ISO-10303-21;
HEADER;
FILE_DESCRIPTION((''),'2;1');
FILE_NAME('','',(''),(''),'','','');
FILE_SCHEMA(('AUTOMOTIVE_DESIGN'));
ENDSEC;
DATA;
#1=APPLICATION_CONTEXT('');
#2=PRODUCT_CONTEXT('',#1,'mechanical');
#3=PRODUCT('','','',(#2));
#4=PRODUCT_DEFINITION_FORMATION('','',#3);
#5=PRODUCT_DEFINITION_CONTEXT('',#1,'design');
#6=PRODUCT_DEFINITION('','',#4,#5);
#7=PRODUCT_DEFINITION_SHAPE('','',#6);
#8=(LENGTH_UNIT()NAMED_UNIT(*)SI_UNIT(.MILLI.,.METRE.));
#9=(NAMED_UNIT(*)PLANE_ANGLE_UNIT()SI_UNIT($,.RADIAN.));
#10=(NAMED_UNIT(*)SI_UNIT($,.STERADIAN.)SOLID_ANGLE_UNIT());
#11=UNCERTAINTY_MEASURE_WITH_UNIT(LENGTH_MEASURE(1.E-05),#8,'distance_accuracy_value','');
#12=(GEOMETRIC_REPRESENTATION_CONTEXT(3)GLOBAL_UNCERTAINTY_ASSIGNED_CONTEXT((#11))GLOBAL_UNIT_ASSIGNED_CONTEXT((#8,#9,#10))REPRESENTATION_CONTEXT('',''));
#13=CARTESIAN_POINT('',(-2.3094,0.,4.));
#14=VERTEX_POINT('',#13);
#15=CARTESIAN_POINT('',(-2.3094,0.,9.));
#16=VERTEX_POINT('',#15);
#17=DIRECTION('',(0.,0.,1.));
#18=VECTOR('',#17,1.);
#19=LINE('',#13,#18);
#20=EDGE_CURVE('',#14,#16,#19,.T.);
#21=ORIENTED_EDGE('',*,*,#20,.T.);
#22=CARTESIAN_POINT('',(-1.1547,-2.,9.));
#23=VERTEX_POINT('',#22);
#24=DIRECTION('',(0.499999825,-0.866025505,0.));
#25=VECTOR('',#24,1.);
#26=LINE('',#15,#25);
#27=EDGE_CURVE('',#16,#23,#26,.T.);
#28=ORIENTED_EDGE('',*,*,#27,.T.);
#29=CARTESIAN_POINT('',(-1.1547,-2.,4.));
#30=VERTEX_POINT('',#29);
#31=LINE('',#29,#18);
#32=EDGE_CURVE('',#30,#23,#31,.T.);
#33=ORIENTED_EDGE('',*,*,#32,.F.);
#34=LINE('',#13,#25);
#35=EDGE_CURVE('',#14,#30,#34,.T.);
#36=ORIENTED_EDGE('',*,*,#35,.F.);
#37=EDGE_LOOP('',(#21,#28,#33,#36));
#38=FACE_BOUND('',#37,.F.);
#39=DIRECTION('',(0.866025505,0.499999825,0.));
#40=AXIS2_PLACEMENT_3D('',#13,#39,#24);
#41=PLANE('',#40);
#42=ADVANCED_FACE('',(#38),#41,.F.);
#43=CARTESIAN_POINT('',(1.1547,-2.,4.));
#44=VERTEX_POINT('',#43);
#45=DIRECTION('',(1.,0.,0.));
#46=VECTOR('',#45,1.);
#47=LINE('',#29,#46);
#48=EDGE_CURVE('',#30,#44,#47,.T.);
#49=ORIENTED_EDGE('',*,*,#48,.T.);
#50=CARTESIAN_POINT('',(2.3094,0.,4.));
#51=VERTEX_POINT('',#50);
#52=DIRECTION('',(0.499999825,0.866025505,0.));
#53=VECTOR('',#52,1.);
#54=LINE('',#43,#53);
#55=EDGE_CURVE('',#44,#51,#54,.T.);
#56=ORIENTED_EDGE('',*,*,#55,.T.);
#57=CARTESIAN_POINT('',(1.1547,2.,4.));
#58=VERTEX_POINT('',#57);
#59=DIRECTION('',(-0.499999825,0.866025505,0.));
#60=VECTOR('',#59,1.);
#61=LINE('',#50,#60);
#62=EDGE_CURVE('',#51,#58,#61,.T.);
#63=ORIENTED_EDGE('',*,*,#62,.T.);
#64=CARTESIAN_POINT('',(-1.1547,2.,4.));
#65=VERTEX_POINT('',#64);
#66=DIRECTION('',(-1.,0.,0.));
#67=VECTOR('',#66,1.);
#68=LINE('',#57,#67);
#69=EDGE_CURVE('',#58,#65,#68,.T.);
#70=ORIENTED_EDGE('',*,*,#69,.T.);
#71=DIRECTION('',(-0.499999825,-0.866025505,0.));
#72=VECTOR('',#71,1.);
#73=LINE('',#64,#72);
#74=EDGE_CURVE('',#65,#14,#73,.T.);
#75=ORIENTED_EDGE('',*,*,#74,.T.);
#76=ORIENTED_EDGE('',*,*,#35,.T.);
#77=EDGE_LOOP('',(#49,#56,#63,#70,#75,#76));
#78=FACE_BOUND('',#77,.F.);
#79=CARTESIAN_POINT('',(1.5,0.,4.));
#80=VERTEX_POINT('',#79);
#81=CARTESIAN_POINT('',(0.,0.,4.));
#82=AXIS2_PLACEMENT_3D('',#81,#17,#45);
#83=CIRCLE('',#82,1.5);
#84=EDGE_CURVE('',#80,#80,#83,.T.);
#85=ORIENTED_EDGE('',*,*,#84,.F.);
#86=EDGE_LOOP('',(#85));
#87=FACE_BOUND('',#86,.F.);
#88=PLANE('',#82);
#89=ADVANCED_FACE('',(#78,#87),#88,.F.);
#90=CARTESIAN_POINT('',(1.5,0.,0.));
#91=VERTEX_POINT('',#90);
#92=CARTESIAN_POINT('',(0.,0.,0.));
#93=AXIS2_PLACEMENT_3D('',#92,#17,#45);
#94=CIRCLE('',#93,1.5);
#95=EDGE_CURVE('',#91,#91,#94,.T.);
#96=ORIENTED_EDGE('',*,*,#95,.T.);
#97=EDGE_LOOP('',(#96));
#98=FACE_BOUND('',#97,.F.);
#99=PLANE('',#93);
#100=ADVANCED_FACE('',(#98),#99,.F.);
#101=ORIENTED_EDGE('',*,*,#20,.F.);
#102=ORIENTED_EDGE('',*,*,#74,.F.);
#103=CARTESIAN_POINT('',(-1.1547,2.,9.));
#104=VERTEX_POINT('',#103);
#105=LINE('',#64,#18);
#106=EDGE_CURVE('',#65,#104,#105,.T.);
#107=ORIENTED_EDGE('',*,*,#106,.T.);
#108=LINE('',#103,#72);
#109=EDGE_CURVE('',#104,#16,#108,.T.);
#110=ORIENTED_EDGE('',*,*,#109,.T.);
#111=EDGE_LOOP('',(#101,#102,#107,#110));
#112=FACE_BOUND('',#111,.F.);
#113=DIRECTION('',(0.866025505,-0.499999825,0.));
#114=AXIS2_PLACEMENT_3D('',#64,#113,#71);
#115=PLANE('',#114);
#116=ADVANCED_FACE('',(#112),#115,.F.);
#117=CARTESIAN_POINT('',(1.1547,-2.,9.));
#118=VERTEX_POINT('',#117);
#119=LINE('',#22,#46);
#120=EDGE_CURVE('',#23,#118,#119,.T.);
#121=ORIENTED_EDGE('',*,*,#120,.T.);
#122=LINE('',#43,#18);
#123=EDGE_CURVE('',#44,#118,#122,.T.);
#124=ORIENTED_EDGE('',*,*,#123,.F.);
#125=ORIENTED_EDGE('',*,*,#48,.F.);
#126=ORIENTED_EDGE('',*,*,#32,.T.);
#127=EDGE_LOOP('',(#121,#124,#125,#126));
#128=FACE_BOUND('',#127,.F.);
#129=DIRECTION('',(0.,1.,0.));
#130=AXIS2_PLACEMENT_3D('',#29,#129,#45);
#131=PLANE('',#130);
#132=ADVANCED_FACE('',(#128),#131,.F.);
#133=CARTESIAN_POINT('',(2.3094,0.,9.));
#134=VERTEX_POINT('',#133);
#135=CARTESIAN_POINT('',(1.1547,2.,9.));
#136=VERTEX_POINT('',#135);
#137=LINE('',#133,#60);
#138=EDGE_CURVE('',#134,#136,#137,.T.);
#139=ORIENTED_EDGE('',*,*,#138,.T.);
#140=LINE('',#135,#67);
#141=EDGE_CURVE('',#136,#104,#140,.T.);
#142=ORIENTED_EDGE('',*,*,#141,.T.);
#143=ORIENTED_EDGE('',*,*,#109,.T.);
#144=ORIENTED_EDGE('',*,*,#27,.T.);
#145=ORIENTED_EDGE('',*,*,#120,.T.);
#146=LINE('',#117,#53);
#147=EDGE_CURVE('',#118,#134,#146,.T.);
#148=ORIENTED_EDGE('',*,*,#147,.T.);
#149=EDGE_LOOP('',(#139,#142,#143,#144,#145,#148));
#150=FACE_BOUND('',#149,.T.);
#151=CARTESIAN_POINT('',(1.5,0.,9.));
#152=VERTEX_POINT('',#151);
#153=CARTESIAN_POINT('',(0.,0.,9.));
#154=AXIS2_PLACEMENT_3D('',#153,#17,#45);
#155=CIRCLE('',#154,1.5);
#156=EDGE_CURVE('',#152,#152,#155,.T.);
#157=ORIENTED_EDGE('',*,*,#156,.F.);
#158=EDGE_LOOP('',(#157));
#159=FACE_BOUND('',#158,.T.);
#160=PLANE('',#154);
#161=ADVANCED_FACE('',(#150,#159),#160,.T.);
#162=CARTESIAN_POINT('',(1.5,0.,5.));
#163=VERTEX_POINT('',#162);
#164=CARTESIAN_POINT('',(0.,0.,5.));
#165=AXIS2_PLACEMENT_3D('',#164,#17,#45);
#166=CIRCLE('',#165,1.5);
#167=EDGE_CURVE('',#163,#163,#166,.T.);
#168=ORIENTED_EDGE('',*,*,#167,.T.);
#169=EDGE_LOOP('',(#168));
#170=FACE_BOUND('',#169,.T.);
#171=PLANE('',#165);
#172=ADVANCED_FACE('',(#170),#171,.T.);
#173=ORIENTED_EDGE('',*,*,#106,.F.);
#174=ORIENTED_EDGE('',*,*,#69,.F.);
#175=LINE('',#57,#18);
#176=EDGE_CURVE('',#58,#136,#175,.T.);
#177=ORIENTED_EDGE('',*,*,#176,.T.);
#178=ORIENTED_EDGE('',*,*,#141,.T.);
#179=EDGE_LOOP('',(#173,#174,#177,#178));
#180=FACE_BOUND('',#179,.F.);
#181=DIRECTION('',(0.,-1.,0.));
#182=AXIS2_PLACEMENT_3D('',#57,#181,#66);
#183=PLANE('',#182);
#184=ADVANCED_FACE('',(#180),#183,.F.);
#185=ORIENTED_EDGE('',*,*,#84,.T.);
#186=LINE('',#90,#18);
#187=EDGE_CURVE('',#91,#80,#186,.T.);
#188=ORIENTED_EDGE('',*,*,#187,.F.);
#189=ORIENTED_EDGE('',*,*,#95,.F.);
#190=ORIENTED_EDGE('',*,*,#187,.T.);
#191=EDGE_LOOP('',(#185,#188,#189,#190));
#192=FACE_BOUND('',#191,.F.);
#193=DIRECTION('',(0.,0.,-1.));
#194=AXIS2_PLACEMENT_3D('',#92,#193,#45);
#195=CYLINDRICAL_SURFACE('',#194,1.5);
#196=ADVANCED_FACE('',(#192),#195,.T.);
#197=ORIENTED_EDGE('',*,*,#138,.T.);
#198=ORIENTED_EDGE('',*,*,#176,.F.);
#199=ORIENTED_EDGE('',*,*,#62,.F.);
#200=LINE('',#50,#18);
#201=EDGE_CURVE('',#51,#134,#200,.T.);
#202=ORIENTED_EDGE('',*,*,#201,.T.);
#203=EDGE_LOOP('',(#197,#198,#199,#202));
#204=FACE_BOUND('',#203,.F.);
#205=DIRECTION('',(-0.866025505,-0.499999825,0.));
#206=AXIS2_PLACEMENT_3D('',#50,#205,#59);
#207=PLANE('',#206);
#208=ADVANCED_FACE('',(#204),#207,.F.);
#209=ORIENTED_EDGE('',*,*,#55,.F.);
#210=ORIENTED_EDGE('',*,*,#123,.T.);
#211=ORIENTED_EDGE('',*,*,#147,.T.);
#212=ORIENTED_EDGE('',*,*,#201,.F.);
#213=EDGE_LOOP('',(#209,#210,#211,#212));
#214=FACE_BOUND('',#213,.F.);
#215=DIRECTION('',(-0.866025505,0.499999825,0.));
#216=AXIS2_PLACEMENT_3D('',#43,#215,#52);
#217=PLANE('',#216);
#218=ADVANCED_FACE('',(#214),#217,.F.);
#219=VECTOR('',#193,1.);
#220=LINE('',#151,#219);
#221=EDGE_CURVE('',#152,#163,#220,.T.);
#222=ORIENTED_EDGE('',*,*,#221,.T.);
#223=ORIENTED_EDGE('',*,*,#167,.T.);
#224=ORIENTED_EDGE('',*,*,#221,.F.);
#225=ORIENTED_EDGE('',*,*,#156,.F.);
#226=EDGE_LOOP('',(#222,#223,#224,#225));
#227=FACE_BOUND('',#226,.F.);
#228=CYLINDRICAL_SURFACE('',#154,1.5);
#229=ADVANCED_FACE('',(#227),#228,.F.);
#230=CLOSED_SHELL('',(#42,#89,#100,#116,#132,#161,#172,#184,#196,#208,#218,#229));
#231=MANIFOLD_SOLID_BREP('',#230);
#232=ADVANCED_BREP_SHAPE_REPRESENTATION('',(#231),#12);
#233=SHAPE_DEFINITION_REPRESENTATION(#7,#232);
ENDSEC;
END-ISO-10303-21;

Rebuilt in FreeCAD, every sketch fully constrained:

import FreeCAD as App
import Part
import Sketcher

V = App.Vector
Q = App.Units.Quantity


def add_polygon(sketch, points):
    """Adds a closed chain of lines whose ends are joined by coincident constraints."""
    first, n = sketch.GeometryCount, len(points)
    for a, b in zip(points, points[1:] + points[:1]):
        sketch.addGeometry(Part.LineSegment(App.Vector(*a, 0), App.Vector(*b, 0)), False)
    for i in range(n):
        sketch.addConstraint(Sketcher.Constraint("Coincident", first + i, 2, first + (i + 1) % n, 1))

doc = App.newDocument("Part")
body = doc.addObject("PartDesign::Body", "Body")

# Sketch on XY plane
sketch1 = body.newObject("Sketcher::SketchObject", "Sketch")
sketch1.AttachmentSupport = (doc.getObject("XY_Plane"), [""])
sketch1.MapMode = "FlatFace"
sketch1.addGeometry(Part.Circle(V(0, 0, 0), V(0, 0, 1), 1.5), False)
sketch1.addConstraint([
    Sketcher.Constraint("Coincident", 0, 3, -1, 1),
    Sketcher.Constraint("Diameter", 0, 3.0),
])
pad1 = body.newObject("PartDesign::Pad", "Pad")
pad1.Profile = sketch1
pad1.Length = 4

# Sketch on XY plane
sketch2 = body.newObject("Sketcher::SketchObject", "Sketch001")
sketch2.AttachmentSupport = (doc.getObject("XY_Plane"), [""])
sketch2.MapMode = "FlatFace"
sketch2.AttachmentOffset = App.Placement(V(0, 0, 4), App.Rotation())
add_polygon(sketch2, [(1.2, -2), (2.3, 0), (1.2, 2), (-1.2, 2), (-2.3, 0), (-1.2, -2)])  # lines 0-5
sketch2.addConstraint([
    Sketcher.Constraint("Horizontal", 2),
    Sketcher.Constraint("Horizontal", 5),
    Sketcher.Constraint("Symmetric", 0, 2, 3, 2, -1, 1),
    Sketcher.Constraint("Symmetric", 1, 2, 4, 2, -1, 1),
    Sketcher.Constraint("PointOnObject", 0, 2, -1),
    Sketcher.Constraint("Parallel", 0, 3),
    Sketcher.Constraint("Vertical", 2, 2, 4, 2),
    Sketcher.Constraint("Angle", 0, Q("60 deg")),
    Sketcher.Constraint("DistanceY", -1, 1, 1, 2, 2.0),
    Sketcher.Constraint("DistanceX", 2, 2, 2, 1, 2.3094),
])
pad2 = body.newObject("PartDesign::Pad", "Pad001")
pad2.Profile = sketch2
pad2.Length = 5

# Sketch on XY plane
sketch3 = body.newObject("Sketcher::SketchObject", "Sketch002")
sketch3.AttachmentSupport = (doc.getObject("XY_Plane"), [""])
sketch3.MapMode = "FlatFace"
sketch3.AttachmentOffset = App.Placement(V(0, 0, 9), App.Rotation())
sketch3.addGeometry(Part.Circle(V(0, 0, 0), V(0, 0, 1), 1.5), False)
sketch3.addConstraint([
    Sketcher.Constraint("Coincident", 0, 3, -1, 1),
    Sketcher.Constraint("Diameter", 0, 3.0),
])
pocket1 = body.newObject("PartDesign::Pocket", "Pocket")
pocket1.Profile = sketch3
pocket1.Length = 4

doc.recompute()
